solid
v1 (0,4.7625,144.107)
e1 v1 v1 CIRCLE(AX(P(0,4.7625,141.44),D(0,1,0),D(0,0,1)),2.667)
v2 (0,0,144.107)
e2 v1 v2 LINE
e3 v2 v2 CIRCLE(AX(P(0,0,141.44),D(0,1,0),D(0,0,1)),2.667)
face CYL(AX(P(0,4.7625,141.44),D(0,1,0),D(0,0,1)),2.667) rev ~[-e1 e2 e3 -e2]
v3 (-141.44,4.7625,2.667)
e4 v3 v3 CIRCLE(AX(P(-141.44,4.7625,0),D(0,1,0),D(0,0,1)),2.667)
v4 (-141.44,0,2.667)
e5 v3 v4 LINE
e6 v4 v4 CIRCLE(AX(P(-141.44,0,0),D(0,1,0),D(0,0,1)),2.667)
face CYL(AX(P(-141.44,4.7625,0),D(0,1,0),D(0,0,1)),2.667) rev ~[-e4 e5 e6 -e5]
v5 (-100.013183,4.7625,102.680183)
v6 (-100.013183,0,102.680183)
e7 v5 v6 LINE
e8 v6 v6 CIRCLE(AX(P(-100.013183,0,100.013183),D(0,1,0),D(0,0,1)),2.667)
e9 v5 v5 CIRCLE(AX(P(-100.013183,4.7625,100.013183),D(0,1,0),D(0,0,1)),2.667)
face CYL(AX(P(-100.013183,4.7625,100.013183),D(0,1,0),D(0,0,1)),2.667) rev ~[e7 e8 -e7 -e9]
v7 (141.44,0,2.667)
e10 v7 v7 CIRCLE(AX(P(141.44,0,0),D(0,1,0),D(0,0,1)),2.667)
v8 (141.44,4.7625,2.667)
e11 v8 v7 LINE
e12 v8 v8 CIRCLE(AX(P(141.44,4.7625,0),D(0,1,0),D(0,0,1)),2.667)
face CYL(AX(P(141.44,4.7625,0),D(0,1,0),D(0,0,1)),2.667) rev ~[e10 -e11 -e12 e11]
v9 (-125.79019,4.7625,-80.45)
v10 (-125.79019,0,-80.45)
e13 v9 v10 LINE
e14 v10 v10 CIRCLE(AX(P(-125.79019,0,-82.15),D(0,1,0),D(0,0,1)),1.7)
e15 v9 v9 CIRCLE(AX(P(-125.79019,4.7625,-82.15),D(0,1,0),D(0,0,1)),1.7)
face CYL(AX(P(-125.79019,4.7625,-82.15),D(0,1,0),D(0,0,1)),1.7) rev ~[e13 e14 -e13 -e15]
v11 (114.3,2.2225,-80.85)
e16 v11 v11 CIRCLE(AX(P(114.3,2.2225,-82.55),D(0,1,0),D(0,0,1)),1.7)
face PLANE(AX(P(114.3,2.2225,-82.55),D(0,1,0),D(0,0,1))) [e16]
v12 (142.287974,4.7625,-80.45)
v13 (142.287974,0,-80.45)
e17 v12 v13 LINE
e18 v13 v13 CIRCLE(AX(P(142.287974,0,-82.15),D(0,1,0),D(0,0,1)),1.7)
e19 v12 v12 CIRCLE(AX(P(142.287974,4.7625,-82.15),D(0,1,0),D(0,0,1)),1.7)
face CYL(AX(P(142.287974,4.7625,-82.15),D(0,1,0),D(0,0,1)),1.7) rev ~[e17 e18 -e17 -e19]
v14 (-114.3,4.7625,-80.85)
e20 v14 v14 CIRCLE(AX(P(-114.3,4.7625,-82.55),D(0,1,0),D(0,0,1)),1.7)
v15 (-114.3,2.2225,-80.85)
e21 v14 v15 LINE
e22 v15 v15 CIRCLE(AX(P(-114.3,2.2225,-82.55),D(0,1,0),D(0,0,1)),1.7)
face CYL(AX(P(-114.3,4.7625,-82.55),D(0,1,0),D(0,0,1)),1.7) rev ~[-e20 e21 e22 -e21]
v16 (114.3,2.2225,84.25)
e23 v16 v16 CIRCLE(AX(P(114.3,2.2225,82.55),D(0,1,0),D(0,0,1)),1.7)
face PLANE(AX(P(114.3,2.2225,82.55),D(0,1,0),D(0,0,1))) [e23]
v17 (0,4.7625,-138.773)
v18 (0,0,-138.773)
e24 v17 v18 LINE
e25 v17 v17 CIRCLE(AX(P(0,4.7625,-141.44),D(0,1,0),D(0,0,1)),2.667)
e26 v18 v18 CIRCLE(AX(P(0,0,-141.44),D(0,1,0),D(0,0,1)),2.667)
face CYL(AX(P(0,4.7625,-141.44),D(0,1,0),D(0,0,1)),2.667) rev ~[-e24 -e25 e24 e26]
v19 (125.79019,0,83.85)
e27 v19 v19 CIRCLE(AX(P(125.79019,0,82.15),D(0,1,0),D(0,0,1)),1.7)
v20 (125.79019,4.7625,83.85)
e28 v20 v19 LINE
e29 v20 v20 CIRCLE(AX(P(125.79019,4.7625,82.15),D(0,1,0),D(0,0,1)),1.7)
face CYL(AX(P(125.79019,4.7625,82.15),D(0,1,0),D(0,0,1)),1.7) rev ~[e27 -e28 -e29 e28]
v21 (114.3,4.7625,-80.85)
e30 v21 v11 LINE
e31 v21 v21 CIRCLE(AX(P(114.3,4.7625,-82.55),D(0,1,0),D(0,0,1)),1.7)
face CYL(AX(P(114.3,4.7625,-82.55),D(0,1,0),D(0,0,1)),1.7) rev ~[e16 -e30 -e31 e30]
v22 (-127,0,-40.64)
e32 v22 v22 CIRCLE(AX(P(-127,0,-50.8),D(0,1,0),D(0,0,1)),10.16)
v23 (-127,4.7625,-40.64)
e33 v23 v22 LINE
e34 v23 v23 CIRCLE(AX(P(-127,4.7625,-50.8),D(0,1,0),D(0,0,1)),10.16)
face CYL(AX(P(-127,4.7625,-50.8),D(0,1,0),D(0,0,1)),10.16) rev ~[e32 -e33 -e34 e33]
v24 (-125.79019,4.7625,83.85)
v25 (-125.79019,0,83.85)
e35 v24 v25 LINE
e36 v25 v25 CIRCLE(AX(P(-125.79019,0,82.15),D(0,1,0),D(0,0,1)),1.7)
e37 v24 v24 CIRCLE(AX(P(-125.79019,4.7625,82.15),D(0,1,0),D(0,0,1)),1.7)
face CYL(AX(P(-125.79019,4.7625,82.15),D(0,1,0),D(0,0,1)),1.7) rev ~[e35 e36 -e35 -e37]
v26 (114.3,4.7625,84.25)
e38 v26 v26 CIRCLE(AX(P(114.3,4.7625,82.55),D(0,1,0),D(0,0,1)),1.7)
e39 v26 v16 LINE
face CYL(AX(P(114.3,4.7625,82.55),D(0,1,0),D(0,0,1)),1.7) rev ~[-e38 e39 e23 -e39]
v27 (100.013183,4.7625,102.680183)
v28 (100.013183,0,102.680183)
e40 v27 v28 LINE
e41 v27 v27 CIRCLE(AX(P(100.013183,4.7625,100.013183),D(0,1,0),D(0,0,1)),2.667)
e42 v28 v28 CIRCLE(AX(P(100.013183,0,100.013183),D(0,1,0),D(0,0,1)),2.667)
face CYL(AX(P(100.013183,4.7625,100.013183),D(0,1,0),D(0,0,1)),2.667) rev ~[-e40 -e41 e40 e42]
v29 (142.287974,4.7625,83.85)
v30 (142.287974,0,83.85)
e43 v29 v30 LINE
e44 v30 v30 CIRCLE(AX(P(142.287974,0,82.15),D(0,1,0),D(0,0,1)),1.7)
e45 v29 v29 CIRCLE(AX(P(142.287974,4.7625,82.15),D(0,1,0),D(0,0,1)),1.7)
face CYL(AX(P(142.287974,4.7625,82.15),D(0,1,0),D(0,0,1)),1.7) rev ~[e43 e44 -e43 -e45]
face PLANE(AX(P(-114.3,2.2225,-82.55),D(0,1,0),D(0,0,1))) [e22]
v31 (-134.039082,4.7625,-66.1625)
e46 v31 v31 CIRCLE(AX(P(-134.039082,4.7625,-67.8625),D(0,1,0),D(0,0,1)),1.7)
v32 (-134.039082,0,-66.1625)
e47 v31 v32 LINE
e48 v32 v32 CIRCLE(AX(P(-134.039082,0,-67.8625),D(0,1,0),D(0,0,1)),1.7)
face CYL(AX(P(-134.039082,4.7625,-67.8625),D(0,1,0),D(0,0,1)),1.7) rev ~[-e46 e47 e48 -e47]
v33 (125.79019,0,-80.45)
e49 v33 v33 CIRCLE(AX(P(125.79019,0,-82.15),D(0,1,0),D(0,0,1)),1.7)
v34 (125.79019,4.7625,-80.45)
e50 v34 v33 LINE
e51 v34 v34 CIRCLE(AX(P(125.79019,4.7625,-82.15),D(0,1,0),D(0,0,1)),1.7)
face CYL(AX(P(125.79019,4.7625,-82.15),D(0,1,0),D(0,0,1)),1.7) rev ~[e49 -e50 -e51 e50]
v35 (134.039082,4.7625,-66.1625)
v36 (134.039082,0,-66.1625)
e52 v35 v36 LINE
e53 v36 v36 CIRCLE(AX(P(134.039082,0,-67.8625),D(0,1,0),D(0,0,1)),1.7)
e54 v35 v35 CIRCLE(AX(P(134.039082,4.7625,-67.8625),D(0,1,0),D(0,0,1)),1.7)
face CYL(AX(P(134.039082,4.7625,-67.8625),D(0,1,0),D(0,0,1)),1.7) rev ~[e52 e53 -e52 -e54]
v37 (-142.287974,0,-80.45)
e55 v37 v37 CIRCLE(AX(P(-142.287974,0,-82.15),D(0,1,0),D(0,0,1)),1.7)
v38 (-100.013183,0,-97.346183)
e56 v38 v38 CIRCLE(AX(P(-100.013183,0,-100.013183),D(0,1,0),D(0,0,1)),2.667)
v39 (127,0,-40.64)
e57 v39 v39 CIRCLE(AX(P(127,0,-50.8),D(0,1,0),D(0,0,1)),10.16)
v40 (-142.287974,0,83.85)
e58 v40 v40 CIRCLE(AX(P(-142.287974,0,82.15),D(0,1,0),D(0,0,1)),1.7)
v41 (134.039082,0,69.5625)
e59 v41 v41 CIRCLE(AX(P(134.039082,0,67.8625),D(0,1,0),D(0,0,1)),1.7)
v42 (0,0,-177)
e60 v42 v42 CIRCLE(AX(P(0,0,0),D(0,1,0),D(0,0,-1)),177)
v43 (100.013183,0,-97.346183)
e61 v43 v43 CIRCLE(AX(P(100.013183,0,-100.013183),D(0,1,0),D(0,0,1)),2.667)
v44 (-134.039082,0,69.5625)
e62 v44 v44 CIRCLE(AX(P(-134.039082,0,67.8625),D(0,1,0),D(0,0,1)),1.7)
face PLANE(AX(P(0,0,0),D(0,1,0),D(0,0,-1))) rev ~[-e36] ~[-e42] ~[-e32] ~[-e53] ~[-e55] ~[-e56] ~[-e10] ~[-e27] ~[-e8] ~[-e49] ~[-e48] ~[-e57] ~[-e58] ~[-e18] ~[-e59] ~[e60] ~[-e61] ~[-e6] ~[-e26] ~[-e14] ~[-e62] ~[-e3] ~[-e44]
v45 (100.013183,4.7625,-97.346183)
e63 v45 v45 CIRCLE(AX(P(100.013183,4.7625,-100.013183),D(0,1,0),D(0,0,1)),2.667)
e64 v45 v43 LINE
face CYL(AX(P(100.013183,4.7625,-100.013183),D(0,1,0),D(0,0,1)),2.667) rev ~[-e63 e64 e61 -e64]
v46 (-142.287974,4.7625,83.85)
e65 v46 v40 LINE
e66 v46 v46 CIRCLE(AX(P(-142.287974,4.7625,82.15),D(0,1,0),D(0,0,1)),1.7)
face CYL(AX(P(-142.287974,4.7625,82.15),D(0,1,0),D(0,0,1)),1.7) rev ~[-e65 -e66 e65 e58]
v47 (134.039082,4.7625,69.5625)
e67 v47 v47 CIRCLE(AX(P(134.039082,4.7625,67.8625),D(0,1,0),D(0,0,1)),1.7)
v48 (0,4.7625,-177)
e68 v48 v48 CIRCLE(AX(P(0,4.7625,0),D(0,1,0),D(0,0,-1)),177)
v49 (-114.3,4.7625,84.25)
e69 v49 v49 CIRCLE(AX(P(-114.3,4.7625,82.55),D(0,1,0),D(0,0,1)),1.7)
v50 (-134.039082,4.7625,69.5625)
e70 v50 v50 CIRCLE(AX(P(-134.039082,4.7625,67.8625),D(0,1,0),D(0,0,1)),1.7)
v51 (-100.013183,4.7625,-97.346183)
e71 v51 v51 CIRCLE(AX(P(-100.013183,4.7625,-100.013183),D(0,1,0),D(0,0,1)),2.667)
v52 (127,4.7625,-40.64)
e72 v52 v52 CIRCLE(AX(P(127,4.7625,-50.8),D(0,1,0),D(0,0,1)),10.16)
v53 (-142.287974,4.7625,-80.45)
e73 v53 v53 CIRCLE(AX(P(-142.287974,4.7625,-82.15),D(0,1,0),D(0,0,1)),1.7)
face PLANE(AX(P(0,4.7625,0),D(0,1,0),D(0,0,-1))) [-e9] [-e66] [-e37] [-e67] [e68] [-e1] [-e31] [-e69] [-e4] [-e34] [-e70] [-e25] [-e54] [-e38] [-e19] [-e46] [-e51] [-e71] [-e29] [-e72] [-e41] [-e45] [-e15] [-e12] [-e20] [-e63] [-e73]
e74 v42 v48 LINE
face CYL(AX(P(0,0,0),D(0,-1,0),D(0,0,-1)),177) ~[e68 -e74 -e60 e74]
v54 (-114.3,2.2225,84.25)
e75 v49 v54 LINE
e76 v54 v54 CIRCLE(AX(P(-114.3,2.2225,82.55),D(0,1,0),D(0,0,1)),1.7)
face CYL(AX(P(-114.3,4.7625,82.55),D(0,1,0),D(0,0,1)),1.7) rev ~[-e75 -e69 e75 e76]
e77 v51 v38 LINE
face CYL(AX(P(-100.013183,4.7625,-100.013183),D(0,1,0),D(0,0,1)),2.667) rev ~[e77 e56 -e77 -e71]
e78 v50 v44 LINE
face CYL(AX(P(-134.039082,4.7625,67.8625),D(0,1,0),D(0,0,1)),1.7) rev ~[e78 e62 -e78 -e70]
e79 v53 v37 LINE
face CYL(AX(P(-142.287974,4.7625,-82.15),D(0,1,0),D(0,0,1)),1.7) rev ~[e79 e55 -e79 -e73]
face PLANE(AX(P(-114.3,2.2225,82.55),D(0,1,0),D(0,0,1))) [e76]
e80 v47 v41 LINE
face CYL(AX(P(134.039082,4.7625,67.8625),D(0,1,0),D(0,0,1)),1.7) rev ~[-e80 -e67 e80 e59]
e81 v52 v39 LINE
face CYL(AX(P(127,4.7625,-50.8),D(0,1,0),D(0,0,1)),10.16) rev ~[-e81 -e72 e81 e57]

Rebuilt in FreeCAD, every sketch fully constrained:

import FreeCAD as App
import Part
import Sketcher
Q = App.Units.Quantity

doc = App.newDocument("Part")
body = doc.addObject("PartDesign::Body", "Body")

# Sketch on XZ plane
sketch1 = doc.addObject("Sketcher::SketchObject", "Sketch")
body.addObject(sketch1)
sketch1.AttachmentSupport = (doc.XZ_Plane, [""])
sketch1.MapMode = "FlatFace"
sketch1.addGeometry(Part.Circle(App.Vector(0, 0, 0), App.Vector(0, 0, 1), 177), False)
sketch1.addConstraint([
    Sketcher.Constraint("Coincident", 0, 3, -1, 1),
    Sketcher.Constraint("Diameter", 0, 354.0),
])
pad1 = doc.addObject("PartDesign::Pad", "Pad")
body.addObject(pad1)
pad1.Profile = sketch1
pad1.Length = Q("0.1875 in")
pad1.Reversed = True

# Sketch on XZ plane
sketch2 = doc.addObject("Sketcher::SketchObject", "Sketch001")
body.addObject(sketch2)
sketch2.AttachmentSupport = (doc.XZ_Plane, [""])
sketch2.MapMode = "FlatFace"
sketch2.AttachmentOffset = App.Placement(App.Vector(0, 0, -0.1875 * 25.4), App.Rotation())
sketch2.addGeometry([
    Part.Circle(App.Vector(-114.3, 82.5, 0), App.Vector(0, 0, 1), 1.7),
    Part.Circle(App.Vector(-114.3, -82.5, 0), App.Vector(0, 0, 1), 1.7),
    Part.Circle(App.Vector(114.3, -82.5, 0), App.Vector(0, 0, 1), 1.7),
    Part.Circle(App.Vector(114.3, 82.5, 0), App.Vector(0, 0, 1), 1.7),
], False)
sketch2.addConstraint([
    Sketcher.Constraint("Equal", 0, 1),
    Sketcher.Constraint("Equal", 1, 2),
    Sketcher.Constraint("Equal", 2, 3),
    Sketcher.Constraint("Symmetric", 0, 3, 2, 3, -1, 1),
    Sketcher.Constraint("Symmetric", 1, 3, 3, 3, -1, 1),
    Sketcher.Constraint("Symmetric", 1, 3, 2, 3, -2),
    Sketcher.Constraint("DistanceX", 1, 3, 2, 3, Q("9 in")),
    Sketcher.Constraint("DistanceY", 1, 3, 0, 3, Q("6.5 in")),
    Sketcher.Constraint("Diameter", 0, 3.4),
])
pocket1 = doc.addObject("PartDesign::Pocket", "Pocket")
body.addObject(pocket1)
pocket1.Profile = sketch2
pocket1.Length = Q("0.1 in")
pocket1.Reversed = True

# Sketch on XZ plane
sketch3 = doc.addObject("Sketcher::SketchObject", "Sketch002")
body.addObject(sketch3)
sketch3.AttachmentSupport = (doc.XZ_Plane, [""])
sketch3.MapMode = "FlatFace"
sketch3.AttachmentOffset = App.Placement(App.Vector(0, 0, -0.1875 * 25.4), App.Rotation())
sketch3.addGeometry([
    Part.Circle(App.Vector(142.3, 82.2, 0), App.Vector(0, 0, 1), 1.7),  # 0
    Part.Circle(App.Vector(125.8, 82.2, 0), App.Vector(0, 0, 1), 1.7),  # 1
    Part.Circle(App.Vector(134, 67.9, 0), App.Vector(0, 0, 1), 1.7),  # 2
    Part.Circle(App.Vector(-134, 67.9, 0), App.Vector(0, 0, 1), 1.7),  # 3
    Part.Circle(App.Vector(-125.8, 82.2, 0), App.Vector(0, 0, 1), 1.7),  # 4
    Part.Circle(App.Vector(-142.3, 82.2, 0), App.Vector(0, 0, 1), 1.7),  # 5
    Part.Circle(App.Vector(-142.3, -82.2, 0), App.Vector(0, 0, 1), 1.7),  # 6
    Part.Circle(App.Vector(-125.8, -82.2, 0), App.Vector(0, 0, 1), 1.7),  # 7
    Part.Circle(App.Vector(-134, -67.9, 0), App.Vector(0, 0, 1), 1.7),  # 8
    Part.Circle(App.Vector(134, -67.9, 0), App.Vector(0, 0, 1), 1.7),  # 9
    Part.Circle(App.Vector(125.8, -82.2, 0), App.Vector(0, 0, 1), 1.7),  # 10
    Part.Circle(App.Vector(142.3, -82.2, 0), App.Vector(0, 0, 1), 1.7),  # 11
], False)
sketch3.addConstraint([
    Sketcher.Constraint("Equal", 0, 1),
    Sketcher.Constraint("Equal", 1, 2),
    Sketcher.Constraint("Equal", 2, 3),
    Sketcher.Constraint("Equal", 3, 4),
    Sketcher.Constraint("Equal", 4, 5),
    Sketcher.Constraint("Equal", 5, 6),
    Sketcher.Constraint("Equal", 6, 7),
    Sketcher.Constraint("Equal", 7, 8),
    Sketcher.Constraint("Equal", 8, 9),
    Sketcher.Constraint("Equal", 9, 10),
    Sketcher.Constraint("Equal", 10, 11),
    Sketcher.Constraint("Symmetric", 0, 3, 6, 3, -1, 1),
    Sketcher.Constraint("Symmetric", 1, 3, 7, 3, -1, 1),
    Sketcher.Constraint("Symmetric", 2, 3, 8, 3, -1, 1),
    Sketcher.Constraint("Symmetric", 3, 3, 9, 3, -1, 1),
    Sketcher.Constraint("Symmetric", 4, 3, 10, 3, -1, 1),
    Sketcher.Constraint("Symmetric", 5, 3, 11, 3, -1, 1),
    Sketcher.Constraint("Symmetric", 2, 3, 3, 3, -2),
    Sketcher.Constraint("Symmetric", 1, 3, 4, 3, -2),
    Sketcher.Constraint("Symmetric", 0, 3, 5, 3, -2),
    Sketcher.Constraint("Horizontal", 0, 3, 1, 3),
    Sketcher.Constraint("Diameter", 0, 3.4),
    Sketcher.Constraint("DistanceY", 2, 3, 0, 3, Q("0.5625 in")),
    Sketcher.Constraint("DistanceY", -1, 1, 0, 3, 82.15),
    Sketcher.Constraint("DistanceX", -1, 1, 1, 3, 125.79019),
    Sketcher.Constraint("DistanceX", -1, 1, 2, 3, 134.039082),
    Sketcher.Constraint("DistanceX", 2, 3, 0, 3, 8.248892),
])
pocket2 = doc.addObject("PartDesign::Pocket", "Pocket001")
body.addObject(pocket2)
pocket2.Profile = sketch3
pocket2.Type = "ThroughAll"
pocket2.Reversed = True

# Sketch on XZ plane
sketch4 = doc.addObject("Sketcher::SketchObject", "Sketch003")
body.addObject(sketch4)
sketch4.AttachmentSupport = (doc.XZ_Plane, [""])
sketch4.MapMode = "FlatFace"
sketch4.AttachmentOffset = App.Placement(App.Vector(0, 0, -0.1875 * 25.4), App.Rotation())
sketch4.addGeometry([
    Part.Circle(App.Vector(-127, -51, 0), App.Vector(0, 0, 1), 10),
    Part.Circle(App.Vector(127, -51, 0), App.Vector(0, 0, 1), 10),
], False)
sketch4.addConstraint([
    Sketcher.Constraint("Equal", 0, 1),
    Sketcher.Constraint("Symmetric", 0, 3, 1, 3, -2),
    Sketcher.Constraint("Diameter", 0, Q("0.8 in")),
    Sketcher.Constraint("DistanceX", 0, 3, -1, 1, Q("5 in")),
    Sketcher.Constraint("DistanceY", 0, 3, -1, 1, Q("2 in")),
])
pocket3 = doc.addObject("PartDesign::Pocket", "Pocket002")
body.addObject(pocket3)
pocket3.Profile = sketch4
pocket3.Type = "ThroughAll"
pocket3.Reversed = True

# Sketch on XZ plane
sketch5 = doc.addObject("Sketcher::SketchObject", "Sketch004")
body.addObject(sketch5)
sketch5.AttachmentSupport = (doc.XZ_Plane, [""])
sketch5.MapMode = "FlatFace"
sketch5.AttachmentOffset = App.Placement(App.Vector(0, 0, -0.1875 * 25.4), App.Rotation())
sketch5.addGeometry([
    Part.Circle(App.Vector(0, 141.4, 0), App.Vector(0, 0, 1), 2.7),  # 0
    Part.Circle(App.Vector(-100, 100, 0), App.Vector(0, 0, 1), 2.7),  # 1
    Part.Circle(App.Vector(-141.4, 0, 0), App.Vector(0, 0, 1), 2.7),  # 2
    Part.Circle(App.Vector(-100, -100, 0), App.Vector(0, 0, 1), 2.7),  # 3
    Part.Circle(App.Vector(0, -141.4, 0), App.Vector(0, 0, 1), 2.7),  # 4
    Part.Circle(App.Vector(100, -100, 0), App.Vector(0, 0, 1), 2.7),  # 5
    Part.Circle(App.Vector(141.4, 0, 0), App.Vector(0, 0, 1), 2.7),  # 6
    Part.Circle(App.Vector(100, 100, 0), App.Vector(0, 0, 1), 2.7),  # 7
], False)
sketch5.addConstraint([
    Sketcher.Constraint("Equal", 0, 1),
    Sketcher.Constraint("Equal", 1, 2),
    Sketcher.Constraint("Equal", 2, 3),
    Sketcher.Constraint("Equal", 3, 4),
    Sketcher.Constraint("Equal", 4, 5),
    Sketcher.Constraint("Equal", 5, 6),
    Sketcher.Constraint("Equal", 6, 7),
    Sketcher.Constraint("Symmetric", 0, 3, 4, 3, -1, 1),
    Sketcher.Constraint("Symmetric", 1, 3, 5, 3, -1, 1),
    Sketcher.Constraint("Symmetric", 2, 3, 6, 3, -1, 1),
    Sketcher.Constraint("Symmetric", 3, 3, 7, 3, -1, 1),
    Sketcher.Constraint("Symmetric", 3, 3, 5, 3, -2),
    Sketcher.Constraint("PointOnObject", 0, 3, -2),
    Sketcher.Constraint("PointOnObject", 2, 3, -1),
    Sketcher.Constraint("Diameter", 0, Q("0.21 in")),
    Sketcher.Constraint("DistanceY", -1, 1, 0, 3, 141.44),
    Sketcher.Constraint("DistanceX", 2, 3, -1, 1, 141.44),
    Sketcher.Constraint("DistanceX", 1, 3, -1, 1, 100.013183),
    Sketcher.Constraint("DistanceY", -1, 1, 1, 3, 100.013183),
])
pocket4 = doc.addObject("PartDesign::Pocket", "Pocket003")
body.addObject(pocket4)
pocket4.Profile = sketch5
pocket4.Type = "ThroughAll"
pocket4.Reversed = True

doc.recompute()
